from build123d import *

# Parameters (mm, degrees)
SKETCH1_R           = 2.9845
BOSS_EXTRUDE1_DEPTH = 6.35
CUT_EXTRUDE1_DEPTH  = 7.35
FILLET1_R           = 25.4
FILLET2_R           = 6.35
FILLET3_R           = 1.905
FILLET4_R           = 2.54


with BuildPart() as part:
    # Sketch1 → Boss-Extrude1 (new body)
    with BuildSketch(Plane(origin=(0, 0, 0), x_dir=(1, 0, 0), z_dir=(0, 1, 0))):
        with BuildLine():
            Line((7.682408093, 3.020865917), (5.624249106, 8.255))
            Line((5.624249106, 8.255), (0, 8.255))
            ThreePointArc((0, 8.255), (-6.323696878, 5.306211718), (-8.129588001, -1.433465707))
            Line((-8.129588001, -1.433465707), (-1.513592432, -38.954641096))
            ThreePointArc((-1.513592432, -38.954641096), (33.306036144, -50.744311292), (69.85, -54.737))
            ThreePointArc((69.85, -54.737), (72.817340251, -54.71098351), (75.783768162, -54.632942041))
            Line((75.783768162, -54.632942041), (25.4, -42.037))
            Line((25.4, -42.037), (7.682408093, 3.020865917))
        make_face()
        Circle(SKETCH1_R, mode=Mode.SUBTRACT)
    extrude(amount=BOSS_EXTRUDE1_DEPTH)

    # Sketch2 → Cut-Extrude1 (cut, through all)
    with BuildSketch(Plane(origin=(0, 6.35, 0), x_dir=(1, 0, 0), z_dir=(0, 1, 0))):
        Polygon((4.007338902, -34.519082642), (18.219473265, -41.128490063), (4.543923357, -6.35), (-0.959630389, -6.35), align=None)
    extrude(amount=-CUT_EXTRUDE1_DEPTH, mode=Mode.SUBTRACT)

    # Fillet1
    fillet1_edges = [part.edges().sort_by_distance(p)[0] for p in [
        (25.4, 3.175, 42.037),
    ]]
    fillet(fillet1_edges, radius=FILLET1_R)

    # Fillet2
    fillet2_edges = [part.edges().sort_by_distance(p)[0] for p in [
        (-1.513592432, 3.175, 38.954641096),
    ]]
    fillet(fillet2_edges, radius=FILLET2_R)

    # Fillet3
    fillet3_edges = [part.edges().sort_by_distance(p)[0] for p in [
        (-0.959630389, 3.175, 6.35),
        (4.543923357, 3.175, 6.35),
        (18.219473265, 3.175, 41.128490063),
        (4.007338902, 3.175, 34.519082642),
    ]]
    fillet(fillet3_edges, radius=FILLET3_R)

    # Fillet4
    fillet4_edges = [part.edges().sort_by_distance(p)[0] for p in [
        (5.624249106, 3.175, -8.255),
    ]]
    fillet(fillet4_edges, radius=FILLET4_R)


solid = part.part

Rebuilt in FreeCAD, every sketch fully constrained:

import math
import FreeCAD as App
import Part
import Sketcher
from FreeCAD import Vector
Q = App.Units.Quantity


def edges_at(feature, points):
    """Names of the edges that pass closest to the given points."""
    edges = feature.Shape.Edges
    near = lambda p: min(range(len(edges)), key=lambda i: edges[i].distToShape(Part.Vertex(*p))[0])
    return sorted({f"Edge{near(p) + 1}" for p in points})

doc = App.newDocument("Part")
body = doc.addObject("PartDesign::Body", "Body")

sketch1 = body.newObject("Sketcher::SketchObject", "Sketch")
sketch1.AttachmentSupport = (doc.getObject("XZ_Plane"), [""])
sketch1.MapMode = "FlatFace"
sketch1.addGeometry(Part.LineSegment(Vector(7.7, -3, 0), Vector(5.6, -8.3, 0)), False)
sketch1.addGeometry(Part.LineSegment(Vector(5.6, -8.3, 0), Vector(0, -8.3, 0)), False)
sketch1.addGeometry(Part.ArcOfCircle(Part.Circle(Vector(0, 0, 0), Vector(0, 0, 1), 8.3), math.radians(170), math.radians(270)), False)
sketch1.addGeometry(Part.LineSegment(Vector(-8.1, 1.4, 0), Vector(-1.5, 39, 0)), False)
sketch1.addGeometry(Part.ArcOfCircle(Part.Circle(Vector(69.8, -114.5, 0), Vector(0, 0, 1), 169.2), math.radians(90), math.radians(115)), False)
sketch1.addGeometry(Part.ArcOfCircle(Part.Circle(Vector(69.8, -114.5, 0), Vector(0, 0, 1), 169.2), math.radians(87.99), math.radians(90)), False)
sketch1.addGeometry(Part.LineSegment(Vector(75.8, 54.6, 0), Vector(25.4, 42, 0)), False)
sketch1.addGeometry(Part.LineSegment(Vector(25.4, 42, 0), Vector(7.7, -3, 0)), False)
sketch1.addGeometry(Part.Circle(Vector(0, 0, 0), Vector(0, 0, 1), 3), False)
sketch1.addConstraint(Sketcher.Constraint("Coincident", 0, 2, 1, 1))
sketch1.addConstraint(Sketcher.Constraint("Tangent", 1, 2, 2, 2))
sketch1.addConstraint(Sketcher.Constraint("Tangent", 2, 1, 3, 1))
sketch1.addConstraint(Sketcher.Constraint("Coincident", 3, 2, 4, 2))
sketch1.addConstraint(Sketcher.Constraint("Tangent", 4, 1, 5, 2))
sketch1.addConstraint(Sketcher.Constraint("Coincident", 5, 1, 6, 1))
sketch1.addConstraint(Sketcher.Constraint("Coincident", 6, 2, 7, 1))
sketch1.addConstraint(Sketcher.Constraint("Coincident", 7, 2, 0, 1))
sketch1.addConstraint(Sketcher.Constraint("Horizontal", 1))
sketch1.addConstraint(Sketcher.Constraint("Coincident", 2, 3, -1, 1))
sketch1.addConstraint(Sketcher.Constraint("Coincident", 8, 3, -1, 1))
sketch1.addConstraint(Sketcher.Constraint("Parallel", 0, 7))
sketch1.addConstraint(Sketcher.Constraint("Vertical", 5, 3, 4, 1))
sketch1.addConstraint(Sketcher.Constraint("Diameter", 8, Q("0.235 in")))
sketch1.addConstraint(Sketcher.Constraint("DistanceX", -1, 1, 6, 2, Q("1 in")))
sketch1.addConstraint(Sketcher.Constraint("Angle", 3, Q("80 deg")))
sketch1.addConstraint(Sketcher.Constraint("Radius", 2, Q("0.325 in")))
sketch1.addConstraint(Sketcher.Constraint("Distance", 3, Q("1.5 in")))
sketch1.addConstraint(Sketcher.Constraint("DistanceY", 6, 2, 4, 1, Q("0.5 in")))
sketch1.addConstraint(Sketcher.Constraint("DistanceX", -1, 1, 4, 3, Q("2.75 in")))
sketch1.addConstraint(Sketcher.Constraint("DistanceY", 0, 2, 4, 1, Q("2.48 in")))
sketch1.addConstraint(Sketcher.Constraint("Radius", 5, 169.234692))
sketch1.addConstraint(Sketcher.Constraint("Distance", 6, 51.934399))
sketch1.addConstraint(Sketcher.Constraint("DistanceX", 1, 2, 1, 1, 5.624249))
sketch1.addConstraint(Sketcher.Constraint("Distance", 0, 5.624249))
pad1 = body.newObject("PartDesign::Pad", "Pad")
pad1.Profile = sketch1
pad1.Length = Q("0.25 in")
pad1.Reversed = True

sketch2 = body.newObject("Sketcher::SketchObject", "Sketch001")
sketch2.AttachmentSupport = (doc.getObject("XZ_Plane"), [""])
sketch2.MapMode = "FlatFace"
sketch2.AttachmentOffset = App.Placement(Vector(0, 0, -0.25 * 25.4), App.Rotation())
sketch2.addGeometry(Part.LineSegment(Vector(4, 35, 0), Vector(18, 41, 0)), False)
sketch2.addGeometry(Part.LineSegment(Vector(18, 41, 0), Vector(5, 6, 0)), False)
sketch2.addGeometry(Part.LineSegment(Vector(5, 6, 0), Vector(-1, 6, 0)), False)
sketch2.addGeometry(Part.LineSegment(Vector(-1, 6, 0), Vector(4, 35, 0)), False)
sketch2.addConstraint(Sketcher.Constraint("Coincident", 0, 2, 1, 1))
sketch2.addConstraint(Sketcher.Constraint("Coincident", 1, 2, 2, 1))
sketch2.addConstraint(Sketcher.Constraint("Coincident", 2, 2, 3, 1))
sketch2.addConstraint(Sketcher.Constraint("Coincident", 3, 2, 0, 1))
sketch2.addConstraint(Sketcher.Constraint("Horizontal", 2))
sketch2.addConstraint(Sketcher.Constraint("Angle", 3, Q("80 deg")))
sketch2.addConstraint(Sketcher.Constraint("DistanceY", -1, 1, 1, 2, Q("0.25 in")))
sketch2.addConstraint(Sketcher.Constraint("Distance", 1, 37.370631))
sketch2.addConstraint(Sketcher.Constraint("DistanceX", 2, 2, 2, 1, 5.503554))
sketch2.addConstraint(Sketcher.Constraint("DistanceY", -1, 1, 0, 2, 41.12849))
sketch2.addConstraint(Sketcher.Constraint("DistanceX", 2, 2, -1, 1, 0.95963))
sketch2.addConstraint(Sketcher.Constraint("DistanceX", -1, 1, 3, 2, 4.007339))
pocket1 = body.newObject("PartDesign::Pocket", "Pocket")
pocket1.Profile = sketch2
pocket1.Type = "ThroughAll"
pocket1.Reversed = True
doc.recompute()

fillet = body.newObject("PartDesign::Fillet", "Fillet")
fillet.Base = (pocket1, edges_at(pocket1, [(25.4, 3.175, 42.037)]))
fillet.Radius = Q("1 in")
doc.recompute()

fillet2 = body.newObject("PartDesign::Fillet", "Fillet001")
fillet2.Base = (fillet, edges_at(fillet, [(-1.514, 3.175, 38.955)]))
fillet2.Radius = Q("0.25 in")
doc.recompute()

fillet3 = body.newObject("PartDesign::Fillet", "Fillet002")
fillet3.Base = (fillet2, edges_at(fillet2, [
    (-0.96, 3.175, 6.35),
    (4.544, 3.175, 6.35),
    (18.219, 3.175, 41.128),
    (4.007, 3.175, 34.519),
]))
fillet3.Radius = Q("0.075 in")
doc.recompute()

fillet4 = body.newObject("PartDesign::Fillet", "Fillet003")
fillet4.Base = (fillet3, edges_at(fillet3, [(5.624, 3.175, -8.255)]))
fillet4.Radius = Q("0.1 in")

doc.recompute()
